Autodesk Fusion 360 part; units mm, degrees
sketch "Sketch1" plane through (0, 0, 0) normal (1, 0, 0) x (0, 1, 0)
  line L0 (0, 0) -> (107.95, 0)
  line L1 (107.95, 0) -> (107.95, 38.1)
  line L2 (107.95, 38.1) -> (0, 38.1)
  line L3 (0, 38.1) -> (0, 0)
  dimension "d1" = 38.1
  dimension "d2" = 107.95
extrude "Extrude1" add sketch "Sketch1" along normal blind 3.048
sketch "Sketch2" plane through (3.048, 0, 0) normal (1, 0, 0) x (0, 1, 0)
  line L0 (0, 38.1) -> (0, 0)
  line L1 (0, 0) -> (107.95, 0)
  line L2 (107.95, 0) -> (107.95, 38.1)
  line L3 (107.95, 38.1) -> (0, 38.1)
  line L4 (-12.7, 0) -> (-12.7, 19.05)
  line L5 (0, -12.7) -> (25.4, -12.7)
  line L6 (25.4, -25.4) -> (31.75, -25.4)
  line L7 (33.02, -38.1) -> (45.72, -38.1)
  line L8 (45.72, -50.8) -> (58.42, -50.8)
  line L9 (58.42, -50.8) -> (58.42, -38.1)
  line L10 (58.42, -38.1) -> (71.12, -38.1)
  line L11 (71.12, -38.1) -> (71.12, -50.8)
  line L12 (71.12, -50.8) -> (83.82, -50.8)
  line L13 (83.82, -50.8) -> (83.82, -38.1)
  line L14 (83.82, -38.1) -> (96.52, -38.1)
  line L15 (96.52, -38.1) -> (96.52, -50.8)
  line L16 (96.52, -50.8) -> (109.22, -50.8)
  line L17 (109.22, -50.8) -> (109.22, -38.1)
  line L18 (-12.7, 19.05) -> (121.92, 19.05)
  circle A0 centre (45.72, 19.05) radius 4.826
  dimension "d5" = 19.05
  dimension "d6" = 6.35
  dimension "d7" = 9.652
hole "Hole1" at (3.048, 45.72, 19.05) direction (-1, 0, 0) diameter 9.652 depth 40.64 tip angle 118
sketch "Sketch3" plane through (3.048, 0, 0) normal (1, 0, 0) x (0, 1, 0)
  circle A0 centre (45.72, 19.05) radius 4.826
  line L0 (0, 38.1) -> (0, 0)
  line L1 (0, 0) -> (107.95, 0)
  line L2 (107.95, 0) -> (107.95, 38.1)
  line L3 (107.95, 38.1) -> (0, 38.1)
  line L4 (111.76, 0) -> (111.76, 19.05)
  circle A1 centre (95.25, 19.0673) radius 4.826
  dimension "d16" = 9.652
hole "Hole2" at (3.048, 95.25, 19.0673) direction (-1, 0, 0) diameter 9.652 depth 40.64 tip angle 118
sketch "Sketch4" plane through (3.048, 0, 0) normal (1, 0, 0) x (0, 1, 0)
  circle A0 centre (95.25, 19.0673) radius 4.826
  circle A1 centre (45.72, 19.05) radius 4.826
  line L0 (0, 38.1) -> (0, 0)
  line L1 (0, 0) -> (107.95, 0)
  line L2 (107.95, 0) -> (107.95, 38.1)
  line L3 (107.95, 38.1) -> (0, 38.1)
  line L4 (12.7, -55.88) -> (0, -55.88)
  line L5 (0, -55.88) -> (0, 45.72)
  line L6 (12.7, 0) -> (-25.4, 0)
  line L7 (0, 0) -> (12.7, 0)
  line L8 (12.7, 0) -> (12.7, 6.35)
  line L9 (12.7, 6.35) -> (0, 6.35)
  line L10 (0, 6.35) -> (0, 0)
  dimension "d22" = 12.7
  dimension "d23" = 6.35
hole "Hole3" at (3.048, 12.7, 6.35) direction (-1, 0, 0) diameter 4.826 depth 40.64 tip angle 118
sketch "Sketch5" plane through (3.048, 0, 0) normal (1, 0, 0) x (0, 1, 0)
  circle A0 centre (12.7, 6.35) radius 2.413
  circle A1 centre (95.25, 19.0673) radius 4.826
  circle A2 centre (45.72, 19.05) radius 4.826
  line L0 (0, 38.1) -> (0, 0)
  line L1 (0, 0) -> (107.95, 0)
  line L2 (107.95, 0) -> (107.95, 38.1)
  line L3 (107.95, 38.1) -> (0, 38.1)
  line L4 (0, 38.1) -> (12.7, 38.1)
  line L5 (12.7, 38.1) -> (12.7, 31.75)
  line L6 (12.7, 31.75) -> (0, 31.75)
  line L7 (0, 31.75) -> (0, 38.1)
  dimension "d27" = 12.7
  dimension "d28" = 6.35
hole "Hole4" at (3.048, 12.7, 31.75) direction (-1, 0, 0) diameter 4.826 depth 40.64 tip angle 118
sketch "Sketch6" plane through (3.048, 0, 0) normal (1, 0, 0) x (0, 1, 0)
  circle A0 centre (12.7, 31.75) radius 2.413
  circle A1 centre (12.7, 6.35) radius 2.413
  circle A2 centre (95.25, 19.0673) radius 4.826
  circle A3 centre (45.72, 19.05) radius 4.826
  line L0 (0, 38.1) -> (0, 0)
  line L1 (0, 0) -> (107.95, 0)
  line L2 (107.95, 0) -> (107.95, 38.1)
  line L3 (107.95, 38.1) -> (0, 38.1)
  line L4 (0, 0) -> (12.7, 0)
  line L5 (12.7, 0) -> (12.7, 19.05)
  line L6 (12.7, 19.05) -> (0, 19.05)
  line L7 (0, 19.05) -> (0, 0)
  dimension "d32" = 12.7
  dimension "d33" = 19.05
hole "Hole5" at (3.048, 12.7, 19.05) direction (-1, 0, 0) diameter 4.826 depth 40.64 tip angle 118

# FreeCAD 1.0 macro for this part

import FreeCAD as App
import Part
import Sketcher

V = App.Vector
Q = App.Units.Quantity


def add_polygon(sketch, points):
    """Adds a closed chain of lines whose ends are joined by coincident constraints."""
    first, n = sketch.GeometryCount, len(points)
    for a, b in zip(points, points[1:] + points[:1]):
        sketch.addGeometry(Part.LineSegment(App.Vector(*a, 0), App.Vector(*b, 0)), False)
    for i in range(n):
        sketch.addConstraint(Sketcher.Constraint("Coincident", first + i, 2, first + (i + 1) % n, 1))

doc = App.newDocument("Part")
body = doc.addObject("PartDesign::Body", "Body")

sketch1 = body.newObject("Sketcher::SketchObject", "Sketch")
sketch1.AttachmentSupport = (doc.getObject("YZ_Plane"), [""])
sketch1.MapMode = "FlatFace"
add_polygon(sketch1, [(0, 38), (0, 0), (108, 0), (108, 38)])
sketch1.addConstraint(Sketcher.Constraint("Vertical", 0))
sketch1.addConstraint(Sketcher.Constraint("Horizontal", 1))
sketch1.addConstraint(Sketcher.Constraint("Vertical", 2))
sketch1.addConstraint(Sketcher.Constraint("Horizontal", 3))
sketch1.addConstraint(Sketcher.Constraint("Coincident", 0, 2, -1, 1))
sketch1.addConstraint(Sketcher.Constraint("DistanceY", 0, 2, 0, 1, Q("1.5 in")))
sketch1.addConstraint(Sketcher.Constraint("DistanceX", 1, 1, 1, 2, Q("4.25 in")))
pad1 = body.newObject("PartDesign::Pad", "Pad")
pad1.Profile = sketch1
pad1.Length = Q("0.12 in")

sketch2 = body.newObject("Sketcher::SketchObject", "Sketch001")
sketch2.AttachmentSupport = (doc.getObject("YZ_Plane"), [""])
sketch2.MapMode = "FlatFace"
sketch2.AttachmentOffset = App.Placement(V(0, 0, 0.12 * 25.4), App.Rotation())
sketch2.addGeometry(Part.Circle(V(45.7, 19.1, 0), V(0, 0, 1), 4.8), False)
sketch2.addConstraint(Sketcher.Constraint("Diameter", 0, Q("0.38 in")))
sketch2.addConstraint(Sketcher.Constraint("DistanceX", -1, 1, 0, 3, Q("1.8 in")))
sketch2.addConstraint(Sketcher.Constraint("DistanceY", -1, 1, 0, 3, Q("0.75 in")))
doc.recompute()
hole = body.newObject("PartDesign::Hole", "Hole")
hole.Profile = sketch2
hole.ThreadType = "None"
hole.Diameter = Q("0.38 in")
hole.DepthType = "Dimension"
hole.Depth = Q("1.6 in")
hole.DrillPoint = "Angled"
hole.DrillPointAngle = 118

sketch3 = body.newObject("Sketcher::SketchObject", "Sketch002")
sketch3.AttachmentSupport = (doc.getObject("YZ_Plane"), [""])
sketch3.MapMode = "FlatFace"
sketch3.AttachmentOffset = App.Placement(V(0, 0, 0.12 * 25.4), App.Rotation())
sketch3.addGeometry(Part.Circle(V(95.2, 19.1, 0), V(0, 0, 1), 4.8), False)
sketch3.addConstraint(Sketcher.Constraint("Diameter", 0, Q("0.38 in")))
sketch3.addConstraint(Sketcher.Constraint("DistanceX", -1, 1, 0, 3, Q("3.75 in")))
sketch3.addConstraint(Sketcher.Constraint("DistanceY", -1, 1, 0, 3, Q("19.0673 mm")))
doc.recompute()
hole2 = body.newObject("PartDesign::Hole", "Hole001")
hole2.Profile = sketch3
hole2.ThreadType = "None"
hole2.Diameter = Q("0.38 in")
hole2.DepthType = "Dimension"
hole2.Depth = Q("1.6 in")
hole2.DrillPoint = "Angled"
hole2.DrillPointAngle = 118

sketch4 = body.newObject("Sketcher::SketchObject", "Sketch003")
sketch4.AttachmentSupport = (doc.getObject("YZ_Plane"), [""])
sketch4.MapMode = "FlatFace"
sketch4.AttachmentOffset = App.Placement(V(0, 0, 0.12 * 25.4), App.Rotation())
sketch4.addGeometry(Part.Circle(V(12.7, 6.3, 0), V(0, 0, 1), 2.4), False)
sketch4.addConstraint(Sketcher.Constraint("Diameter", 0, Q("0.19 in")))
sketch4.addConstraint(Sketcher.Constraint("DistanceX", -1, 1, 0, 3, Q("0.5 in")))
sketch4.addConstraint(Sketcher.Constraint("DistanceY", -1, 1, 0, 3, Q("0.25 in")))
doc.recompute()
hole3 = body.newObject("PartDesign::Hole", "Hole002")
hole3.Profile = sketch4
hole3.ThreadType = "None"
hole3.Diameter = Q("0.19 in")
hole3.DepthType = "Dimension"
hole3.Depth = Q("1.6 in")
hole3.DrillPoint = "Angled"
hole3.DrillPointAngle = 118

sketch5 = body.newObject("Sketcher::SketchObject", "Sketch004")
sketch5.AttachmentSupport = (doc.getObject("YZ_Plane"), [""])
sketch5.MapMode = "FlatFace"
sketch5.AttachmentOffset = App.Placement(V(0, 0, 0.12 * 25.4), App.Rotation())
sketch5.addGeometry(Part.Circle(V(12.7, 31.8, 0), V(0, 0, 1), 2.4), False)
sketch5.addConstraint(Sketcher.Constraint("Diameter", 0, Q("0.19 in")))
sketch5.addConstraint(Sketcher.Constraint("DistanceX", -1, 1, 0, 3, Q("0.5 in")))
sketch5.addConstraint(Sketcher.Constraint("DistanceY", -1, 1, 0, 3, Q("1.25 in")))
doc.recompute()
hole4 = body.newObject("PartDesign::Hole", "Hole003")
hole4.Profile = sketch5
hole4.ThreadType = "None"
hole4.Diameter = Q("0.19 in")
hole4.DepthType = "Dimension"
hole4.Depth = Q("1.6 in")
hole4.DrillPoint = "Angled"
hole4.DrillPointAngle = 118

sketch6 = body.newObject("Sketcher::SketchObject", "Sketch005")
sketch6.AttachmentSupport = (doc.getObject("YZ_Plane"), [""])
sketch6.MapMode = "FlatFace"
sketch6.AttachmentOffset = App.Placement(V(0, 0, 0.12 * 25.4), App.Rotation())
sketch6.addGeometry(Part.Circle(V(12.7, 19.1, 0), V(0, 0, 1), 2.4), False)
sketch6.addConstraint(Sketcher.Constraint("Diameter", 0, Q("0.19 in")))
sketch6.addConstraint(Sketcher.Constraint("DistanceX", -1, 1, 0, 3, Q("0.5 in")))
sketch6.addConstraint(Sketcher.Constraint("DistanceY", -1, 1, 0, 3, Q("0.75 in")))
doc.recompute()
hole5 = body.newObject("PartDesign::Hole", "Hole004")
hole5.Profile = sketch6
hole5.ThreadType = "None"
hole5.Diameter = Q("0.19 in")
hole5.DepthType = "Dimension"
hole5.Depth = Q("1.6 in")
hole5.DrillPoint = "Angled"
hole5.DrillPointAngle = 118

doc.recompute()
